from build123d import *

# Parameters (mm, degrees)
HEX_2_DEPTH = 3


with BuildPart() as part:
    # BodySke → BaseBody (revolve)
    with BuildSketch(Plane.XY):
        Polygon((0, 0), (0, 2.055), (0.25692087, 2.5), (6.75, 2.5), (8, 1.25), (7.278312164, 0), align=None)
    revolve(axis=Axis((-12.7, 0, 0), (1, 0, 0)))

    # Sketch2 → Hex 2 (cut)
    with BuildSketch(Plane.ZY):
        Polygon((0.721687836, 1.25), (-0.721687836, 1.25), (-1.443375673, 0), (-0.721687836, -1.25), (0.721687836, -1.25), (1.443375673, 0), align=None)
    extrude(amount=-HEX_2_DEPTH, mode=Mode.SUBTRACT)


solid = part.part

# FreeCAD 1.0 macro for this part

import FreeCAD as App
import Part
import Sketcher
Q = App.Units.Quantity

doc = App.newDocument("Part")
body = doc.addObject("PartDesign::Body", "Body")

# Sketch on XY plane
sketch1 = body.newObject("Sketcher::SketchObject", "Sketch")
sketch1.AttachmentSupport = (doc.getObject("XY_Plane"), [""])
sketch1.MapMode = "FlatFace"
sketch1.addGeometry(Part.LineSegment(App.Vector(0, 2.055, 0), App.Vector(0, 0, 0)), False)
sketch1.addGeometry(Part.LineSegment(App.Vector(0, 0, 0), App.Vector(7.278312, 0, 0)), False)
sketch1.addGeometry(Part.LineSegment(App.Vector(7.278312, 0, 0), App.Vector(8, 1.25, 0)), False)
sketch1.addGeometry(Part.LineSegment(App.Vector(8, 1.25, 0), App.Vector(6.75, 2.5, 0)), False)
sketch1.addGeometry(Part.LineSegment(App.Vector(6.75, 2.5, 0), App.Vector(0.256921, 2.5, 0)), False)
sketch1.addGeometry(Part.LineSegment(App.Vector(0.256921, 2.5, 0), App.Vector(0, 2.055, 0)), False)
sketch1.addConstraint(Sketcher.Constraint("Coincident", 0, 2, 1, 1))
sketch1.addConstraint(Sketcher.Constraint("Coincident", 1, 2, 2, 1))
sketch1.addConstraint(Sketcher.Constraint("Coincident", 2, 2, 3, 1))
sketch1.addConstraint(Sketcher.Constraint("Coincident", 3, 2, 4, 1))
sketch1.addConstraint(Sketcher.Constraint("Coincident", 4, 2, 5, 1))
sketch1.addConstraint(Sketcher.Constraint("Coincident", 5, 2, 0, 1))
sketch1.addConstraint(Sketcher.Constraint("Vertical", 0))
sketch1.addConstraint(Sketcher.Constraint("Horizontal", 1))
sketch1.addConstraint(Sketcher.Constraint("Horizontal", 4))
sketch1.addConstraint(Sketcher.Constraint("Coincident", 0, 2, -1, 1))
sketch1.addConstraint(Sketcher.Constraint("Parallel", 2, 5))
sketch1.addConstraint(Sketcher.Constraint("Angle", 2, Q("60 deg")))
sketch1.addConstraint(Sketcher.Constraint("Angle", 3, Q("135 deg")))
sketch1.addConstraint(Sketcher.Constraint("DistanceX", -1, 1, 2, 2, 8.0))
sketch1.addConstraint(Sketcher.Constraint("DistanceY", -1, 1, 3, 2, 2.5))
sketch1.addConstraint(Sketcher.Constraint("DistanceY", 0, 2, 0, 1, 2.055))
sketch1.addConstraint(Sketcher.Constraint("DistanceY", -1, 1, 2, 2, 1.25))
revolution = body.newObject("PartDesign::Revolution", "Revolution")
revolution.Profile = sketch1
revolution.ReferenceAxis = (sketch1, ["H_Axis"])
revolution.Angle = 360

# Sketch on YZ plane
sketch2 = body.newObject("Sketcher::SketchObject", "Sketch001")
sketch2.AttachmentSupport = (doc.getObject("YZ_Plane"), [""])
sketch2.MapMode = "FlatFace"
sketch2.addGeometry(Part.LineSegment(App.Vector(1.25, 0.721688, 0), App.Vector(1.25, -0.721688, 0)), False)
sketch2.addGeometry(Part.LineSegment(App.Vector(1.25, -0.721688, 0), App.Vector(0, -1.443376, 0)), False)
sketch2.addGeometry(Part.LineSegment(App.Vector(0, -1.443376, 0), App.Vector(-1.25, -0.721688, 0)), False)
sketch2.addGeometry(Part.LineSegment(App.Vector(-1.25, -0.721688, 0), App.Vector(-1.25, 0.721688, 0)), False)
sketch2.addGeometry(Part.LineSegment(App.Vector(-1.25, 0.721688, 0), App.Vector(0, 1.443376, 0)), False)
sketch2.addGeometry(Part.LineSegment(App.Vector(0, 1.443376, 0), App.Vector(1.25, 0.721688, 0)), False)
sketch2.addConstraint(Sketcher.Constraint("Coincident", 0, 2, 1, 1))
sketch2.addConstraint(Sketcher.Constraint("Coincident", 1, 2, 2, 1))
sketch2.addConstraint(Sketcher.Constraint("Coincident", 2, 2, 3, 1))
sketch2.addConstraint(Sketcher.Constraint("Coincident", 3, 2, 4, 1))
sketch2.addConstraint(Sketcher.Constraint("Coincident", 4, 2, 5, 1))
sketch2.addConstraint(Sketcher.Constraint("Coincident", 5, 2, 0, 1))
sketch2.addConstraint(Sketcher.Constraint("Vertical", 0))
sketch2.addConstraint(Sketcher.Constraint("Vertical", 3))
sketch2.addConstraint(Sketcher.Constraint("Symmetric", 0, 2, 3, 2, -1, 1))
sketch2.addConstraint(Sketcher.Constraint("Symmetric", 1, 2, 4, 2, -1, 1))
sketch2.addConstraint(Sketcher.Constraint("PointOnObject", 1, 2, -2))
sketch2.addConstraint(Sketcher.Constraint("Parallel", 2, 5))
sketch2.addConstraint(Sketcher.Constraint("Horizontal", 0, 2, 2, 2))
sketch2.addConstraint(Sketcher.Constraint("Angle", 1, Q("-150 deg")))
sketch2.addConstraint(Sketcher.Constraint("DistanceX", 2, 2, 0, 2, 2.5))
sketch2.addConstraint(Sketcher.Constraint("DistanceY", 0, 2, 0, 1, 1.443376))
pocket1 = body.newObject("PartDesign::Pocket", "Pocket")
pocket1.Profile = sketch2
pocket1.Length = 3
pocket1.Reversed = True

doc.recompute()
